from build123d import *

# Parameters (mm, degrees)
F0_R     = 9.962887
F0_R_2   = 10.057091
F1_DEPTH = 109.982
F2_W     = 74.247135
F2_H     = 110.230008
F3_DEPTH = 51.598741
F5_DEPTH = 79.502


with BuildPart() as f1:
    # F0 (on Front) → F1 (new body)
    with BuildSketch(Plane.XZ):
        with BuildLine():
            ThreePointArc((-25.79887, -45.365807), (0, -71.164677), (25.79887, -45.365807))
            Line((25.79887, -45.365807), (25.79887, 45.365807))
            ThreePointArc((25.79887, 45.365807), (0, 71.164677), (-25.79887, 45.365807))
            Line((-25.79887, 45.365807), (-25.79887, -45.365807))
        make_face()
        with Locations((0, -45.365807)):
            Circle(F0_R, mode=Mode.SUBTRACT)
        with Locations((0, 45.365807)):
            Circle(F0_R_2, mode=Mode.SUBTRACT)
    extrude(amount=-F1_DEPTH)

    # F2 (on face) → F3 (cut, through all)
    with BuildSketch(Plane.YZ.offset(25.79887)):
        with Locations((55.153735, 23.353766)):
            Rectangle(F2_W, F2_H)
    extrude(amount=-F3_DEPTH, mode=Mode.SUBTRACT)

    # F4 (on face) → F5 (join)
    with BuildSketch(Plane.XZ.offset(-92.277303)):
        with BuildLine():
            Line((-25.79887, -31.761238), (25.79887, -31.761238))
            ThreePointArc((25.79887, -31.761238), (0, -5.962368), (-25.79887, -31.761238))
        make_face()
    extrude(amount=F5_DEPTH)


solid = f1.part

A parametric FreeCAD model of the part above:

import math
import FreeCAD as App
import Part
import Sketcher
from FreeCAD import Vector
Q = App.Units.Quantity

doc = App.newDocument("Part")
body = doc.addObject("PartDesign::Body", "Body")

# Sketch on XZ plane
sketch1 = doc.addObject("Sketcher::SketchObject", "Sketch")
body.addObject(sketch1)
sketch1.AttachmentSupport = (doc.XZ_Plane, [""])
sketch1.MapMode = "FlatFace"
sketch1.addGeometry([
    Part.ArcOfCircle(Part.Circle(Vector(0, -45, 0), Vector(0, 0, 1), 26), math.radians(180), math.radians(360)),  # 0
    Part.LineSegment(Vector(26, -45, 0), Vector(26, 45, 0)),  # 1
    Part.ArcOfCircle(Part.Circle(Vector(0, 45, 0), Vector(0, 0, 1), 26), math.radians(0), math.radians(180)),  # 2
    Part.LineSegment(Vector(-26, 45, 0), Vector(-26, -45, 0)),  # 3
    Part.Circle(Vector(0, -45, 0), Vector(0, 0, 1), 10),  # 4
    Part.Circle(Vector(0, 45, 0), Vector(0, 0, 1), 10),  # 5
], False)
sketch1.addConstraint([
    Sketcher.Constraint("Tangent", 0, 2, 1, 1),
    Sketcher.Constraint("Tangent", 1, 2, 2, 1),
    Sketcher.Constraint("Tangent", 2, 2, 3, 1),
    Sketcher.Constraint("Tangent", 3, 2, 0, 1),
    Sketcher.Constraint("Vertical", 1),
    Sketcher.Constraint("Vertical", 3),
    Sketcher.Constraint("Coincident", 4, 3, 0, 3),
    Sketcher.Constraint("Coincident", 5, 3, 2, 3),
    Sketcher.Constraint("Symmetric", 0, 3, 2, 3, -1, 1),
    Sketcher.Constraint("Diameter", 5, Q("20.114182 mm")),
    Sketcher.Constraint("Radius", 0, Q("25.79887 mm")),
    Sketcher.Constraint("Diameter", 4, Q("19.925774 mm")),
    Sketcher.Constraint("DistanceY", 1, 1, 1, 2, Q("90.731614 mm")),
])
pad1 = doc.addObject("PartDesign::Pad", "Pad")
body.addObject(pad1)
pad1.Profile = sketch1
pad1.Length = Q("4.33 in")
pad1.Reversed = True

# Sketch on YZ plane
sketch2 = doc.addObject("Sketcher::SketchObject", "Sketch001")
body.addObject(sketch2)
sketch2.AttachmentSupport = (doc.YZ_Plane, [""])
sketch2.MapMode = "FlatFace"
sketch2.AttachmentOffset = App.Placement(Vector(0, 0, 25.79887), App.Rotation())
sketch2.addGeometry([
    Part.LineSegment(Vector(18, 78, 0), Vector(18, -32, 0)),
    Part.LineSegment(Vector(18, -32, 0), Vector(92, -32, 0)),
    Part.LineSegment(Vector(92, -32, 0), Vector(92, 78, 0)),
    Part.LineSegment(Vector(92, 78, 0), Vector(18, 78, 0)),
], False)
sketch2.addConstraint([
    Sketcher.Constraint("Coincident", 0, 2, 1, 1),
    Sketcher.Constraint("Coincident", 1, 2, 2, 1),
    Sketcher.Constraint("Coincident", 2, 2, 3, 1),
    Sketcher.Constraint("Coincident", 3, 2, 0, 1),
    Sketcher.Constraint("Vertical", 0),
    Sketcher.Constraint("Horizontal", 1),
    Sketcher.Constraint("Vertical", 2),
    Sketcher.Constraint("Horizontal", 3),
    Sketcher.Constraint("DistanceY", 0, 2, 0, 1, Q("110.230008 mm")),
    Sketcher.Constraint("DistanceX", 1, 1, 1, 2, Q("74.247135 mm")),
    Sketcher.Constraint("DistanceY", -1, 1, 2, 2, Q("78.46877 mm")),
    Sketcher.Constraint("DistanceX", -1, 1, 0, 2, Q("18.030168 mm")),
])
pocket1 = doc.addObject("PartDesign::Pocket", "Pocket")
body.addObject(pocket1)
pocket1.Profile = sketch2
pocket1.Type = "ThroughAll"

# Sketch on XZ plane
sketch3 = doc.addObject("Sketcher::SketchObject", "Sketch002")
body.addObject(sketch3)
sketch3.AttachmentSupport = (doc.XZ_Plane, [""])
sketch3.MapMode = "FlatFace"
sketch3.AttachmentOffset = App.Placement(Vector(0, 0, -92.277303), App.Rotation())
sketch3.addGeometry([
    Part.LineSegment(Vector(-26, -32, 0), Vector(26, -32, 0)),
    Part.ArcOfCircle(Part.Circle(Vector(0, -32, 0), Vector(0, 0, 1), 26), math.radians(0), math.radians(180)),
], False)
sketch3.addConstraint([
    Sketcher.Constraint("Coincident", 0, 1, 1, 2),
    Sketcher.Constraint("Coincident", 1, 1, 0, 2),
    Sketcher.Constraint("Horizontal", 0),
    Sketcher.Constraint("PointOnObject", 1, 3, -2),
    Sketcher.Constraint("Horizontal", 1, 3, 0, 1),
    Sketcher.Constraint("Radius", 1, Q("25.79887 mm")),
    Sketcher.Constraint("DistanceY", 1, 3, -1, 1, Q("31.761238 mm")),
])
pad2 = doc.addObject("PartDesign::Pad", "Pad001")
body.addObject(pad2)
pad2.Profile = sketch3
pad2.Length = Q("3.13 in")

doc.recompute()
